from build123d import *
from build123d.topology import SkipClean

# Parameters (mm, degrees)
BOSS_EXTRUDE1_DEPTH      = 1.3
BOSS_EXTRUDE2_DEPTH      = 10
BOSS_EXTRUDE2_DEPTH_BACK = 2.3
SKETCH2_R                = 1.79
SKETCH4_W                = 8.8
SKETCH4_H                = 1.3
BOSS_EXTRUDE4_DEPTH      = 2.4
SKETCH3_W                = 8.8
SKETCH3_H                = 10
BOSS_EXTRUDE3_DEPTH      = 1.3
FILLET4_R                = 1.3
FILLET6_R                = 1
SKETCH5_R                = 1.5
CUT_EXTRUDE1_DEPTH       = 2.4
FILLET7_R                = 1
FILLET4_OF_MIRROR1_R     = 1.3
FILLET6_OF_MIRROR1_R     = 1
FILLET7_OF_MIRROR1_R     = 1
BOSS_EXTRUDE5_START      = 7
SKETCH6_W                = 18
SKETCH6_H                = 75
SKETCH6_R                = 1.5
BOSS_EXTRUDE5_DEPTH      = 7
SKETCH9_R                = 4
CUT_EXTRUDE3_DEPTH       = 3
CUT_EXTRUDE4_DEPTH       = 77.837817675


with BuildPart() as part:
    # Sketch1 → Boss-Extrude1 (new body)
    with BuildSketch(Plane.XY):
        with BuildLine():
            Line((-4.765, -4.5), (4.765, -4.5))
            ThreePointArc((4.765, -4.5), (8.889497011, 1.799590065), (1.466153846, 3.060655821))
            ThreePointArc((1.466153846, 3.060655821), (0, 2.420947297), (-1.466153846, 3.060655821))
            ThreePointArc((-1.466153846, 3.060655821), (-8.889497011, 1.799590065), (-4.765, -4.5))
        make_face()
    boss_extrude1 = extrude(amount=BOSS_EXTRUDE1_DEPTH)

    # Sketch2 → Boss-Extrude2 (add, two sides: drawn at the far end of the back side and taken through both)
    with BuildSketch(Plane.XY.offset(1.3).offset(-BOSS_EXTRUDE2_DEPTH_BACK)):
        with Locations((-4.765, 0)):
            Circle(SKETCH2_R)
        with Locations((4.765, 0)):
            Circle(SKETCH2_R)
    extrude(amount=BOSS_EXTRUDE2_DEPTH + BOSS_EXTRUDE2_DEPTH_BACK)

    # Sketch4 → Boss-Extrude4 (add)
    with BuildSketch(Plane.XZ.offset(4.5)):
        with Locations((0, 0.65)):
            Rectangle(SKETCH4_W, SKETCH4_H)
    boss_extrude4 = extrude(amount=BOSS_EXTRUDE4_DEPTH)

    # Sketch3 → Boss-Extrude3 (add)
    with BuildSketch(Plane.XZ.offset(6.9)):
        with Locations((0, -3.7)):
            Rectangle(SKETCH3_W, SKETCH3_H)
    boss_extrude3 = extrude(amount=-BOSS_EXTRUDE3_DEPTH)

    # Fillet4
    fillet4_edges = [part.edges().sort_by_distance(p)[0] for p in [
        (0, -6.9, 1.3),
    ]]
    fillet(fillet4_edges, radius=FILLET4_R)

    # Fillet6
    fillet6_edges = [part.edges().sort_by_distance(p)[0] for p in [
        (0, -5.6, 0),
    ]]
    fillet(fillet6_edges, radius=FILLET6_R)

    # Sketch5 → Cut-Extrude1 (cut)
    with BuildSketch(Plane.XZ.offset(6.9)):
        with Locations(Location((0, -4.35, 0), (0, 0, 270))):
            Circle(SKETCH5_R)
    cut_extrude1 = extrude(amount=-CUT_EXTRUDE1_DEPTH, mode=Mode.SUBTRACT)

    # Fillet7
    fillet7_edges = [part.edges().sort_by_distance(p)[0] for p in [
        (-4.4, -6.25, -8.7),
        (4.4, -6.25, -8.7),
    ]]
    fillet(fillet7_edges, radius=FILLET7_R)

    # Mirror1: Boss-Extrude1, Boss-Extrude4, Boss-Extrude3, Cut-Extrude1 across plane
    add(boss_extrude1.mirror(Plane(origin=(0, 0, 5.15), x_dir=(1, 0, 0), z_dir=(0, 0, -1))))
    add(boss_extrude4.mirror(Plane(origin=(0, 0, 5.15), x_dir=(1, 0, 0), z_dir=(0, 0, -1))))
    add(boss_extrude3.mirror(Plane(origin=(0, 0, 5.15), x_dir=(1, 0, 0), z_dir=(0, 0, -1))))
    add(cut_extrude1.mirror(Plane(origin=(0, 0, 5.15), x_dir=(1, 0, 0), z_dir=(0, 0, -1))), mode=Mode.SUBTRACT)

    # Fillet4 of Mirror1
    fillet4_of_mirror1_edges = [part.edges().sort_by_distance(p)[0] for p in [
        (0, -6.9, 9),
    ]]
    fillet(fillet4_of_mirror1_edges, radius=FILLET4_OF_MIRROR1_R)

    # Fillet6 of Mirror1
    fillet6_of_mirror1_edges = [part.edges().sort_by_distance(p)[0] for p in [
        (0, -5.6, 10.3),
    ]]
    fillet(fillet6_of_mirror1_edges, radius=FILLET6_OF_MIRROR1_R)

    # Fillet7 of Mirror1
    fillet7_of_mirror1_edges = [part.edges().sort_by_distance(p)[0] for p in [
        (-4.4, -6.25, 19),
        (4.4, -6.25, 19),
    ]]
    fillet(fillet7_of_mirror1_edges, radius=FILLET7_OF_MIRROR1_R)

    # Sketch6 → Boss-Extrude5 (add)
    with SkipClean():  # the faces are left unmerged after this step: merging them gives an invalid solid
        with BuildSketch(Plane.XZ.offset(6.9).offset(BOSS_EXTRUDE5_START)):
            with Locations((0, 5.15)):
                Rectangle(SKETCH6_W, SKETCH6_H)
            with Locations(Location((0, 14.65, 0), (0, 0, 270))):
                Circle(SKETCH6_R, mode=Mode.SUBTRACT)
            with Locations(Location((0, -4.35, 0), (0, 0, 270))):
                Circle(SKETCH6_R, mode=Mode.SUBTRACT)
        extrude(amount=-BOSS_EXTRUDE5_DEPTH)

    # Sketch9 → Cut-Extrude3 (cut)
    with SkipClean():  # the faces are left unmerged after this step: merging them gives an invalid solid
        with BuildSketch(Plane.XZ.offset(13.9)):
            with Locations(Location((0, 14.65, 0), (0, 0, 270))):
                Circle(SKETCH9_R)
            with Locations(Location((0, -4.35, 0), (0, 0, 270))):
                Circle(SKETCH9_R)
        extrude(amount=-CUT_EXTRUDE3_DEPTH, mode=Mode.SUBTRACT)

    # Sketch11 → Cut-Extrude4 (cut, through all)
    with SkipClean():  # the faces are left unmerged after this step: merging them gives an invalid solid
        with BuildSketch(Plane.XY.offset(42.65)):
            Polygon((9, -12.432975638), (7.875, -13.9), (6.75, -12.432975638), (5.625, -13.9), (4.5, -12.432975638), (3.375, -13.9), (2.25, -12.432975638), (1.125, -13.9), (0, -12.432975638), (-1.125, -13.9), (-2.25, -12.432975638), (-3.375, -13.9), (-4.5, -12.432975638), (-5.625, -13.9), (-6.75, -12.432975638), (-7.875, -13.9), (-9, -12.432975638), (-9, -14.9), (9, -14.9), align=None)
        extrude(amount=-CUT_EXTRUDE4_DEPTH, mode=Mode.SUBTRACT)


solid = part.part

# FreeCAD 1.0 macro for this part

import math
import FreeCAD as App
import Part
import Sketcher

V = App.Vector


def edges_at(feature, points):
    """Names of the edges that pass closest to the given points."""
    edges = feature.Shape.Edges
    near = lambda p: min(range(len(edges)), key=lambda i: edges[i].distToShape(Part.Vertex(*p))[0])
    return sorted({f"Edge{near(p) + 1}" for p in points})

doc = App.newDocument("Part")
params = doc.addObject("Spreadsheet::Sheet", "Params")
for row, (alias, value) in enumerate([
    ("sketch1_radius", "2 mm"),
    ("sketch1_radius2", "4.5 mm"),
    ("sketch1_width", "9.53 mm"),
    ("pad1_length", "1.3 mm"),
    ("sketch2_diameter", "3.58 mm"),
    ("pad2_length", "10 mm"),
    ("pad2_length2", "2.3 mm"),
    ("sketch3_width", "8.8 mm"),
    ("sketch3_height", "1.3 mm"),
    ("pad3_length", "2.4 mm"),
    ("sketch4_height", "10 mm"),
    ("sketch4_width", "8.8 mm"),
    ("pad4_length", "1.3 mm"),
    ("fillet_radius", "1.3 mm"),
    ("fillet2_radius", "1 mm"),
    ("sketch5_diameter", "3 mm"),
    ("pocket1_length", "2.4 mm"),
    ("fillet3_radius", "1 mm"),
    ("fillet4_radius", "1.3 mm"),
    ("fillet5_radius", "1 mm"),
    ("fillet6_radius", "1 mm"),
    ("sketch6_diameter", "3 mm"),
    ("sketch6_width", "18 mm"),
    ("sketch6_height", "75 mm"),
    ("pad5_length", "7 mm"),
    ("sketch7_diameter", "8 mm"),
    ("pocket2_length", "3 mm"),
    ("sketch8_width", "18 mm"),
], start=1):
    params.set(f"A{row}", alias)
    params.set(f"B{row}", "=" + value)
    params.setAlias(f"B{row}", alias)

body = doc.addObject("PartDesign::Body", "Body")

# Sketch on XY plane
sketch1 = body.newObject("Sketcher::SketchObject", "Sketch")
sketch1.AttachmentSupport = (doc.getObject("XY_Plane"), [""])
sketch1.MapMode = "FlatFace"
sketch1.addGeometry([
    Part.LineSegment(V(-4.8, -4.5, 0), V(4.8, -4.5, 0)),
    Part.ArcOfCircle(Part.Circle(V(4.8, 0, 0), V(0, 0, 1), 4.5), math.radians(-90), math.radians(137)),
    Part.ArcOfCircle(Part.Circle(V(0, 4.4, 0), V(0, 0, 1), 2), math.radians(-137), math.radians(-43)),
    Part.ArcOfCircle(Part.Circle(V(-4.8, 0, 0), V(0, 0, 1), 4.5), math.radians(43), math.radians(270)),
], False)
sketch1.addConstraint([
    Sketcher.Constraint("Tangent", 0, 2, 1, 1),
    Sketcher.Constraint("Tangent", 1, 2, 2, 2),
    Sketcher.Constraint("Tangent", 2, 1, 3, 1),
    Sketcher.Constraint("Tangent", 3, 2, 0, 1),
    Sketcher.Constraint("Horizontal", 0),
    Sketcher.Constraint("Equal", 1, 3),
    Sketcher.Constraint("Symmetric", 1, 3, 3, 3, -1, 1),
    Sketcher.Constraint("Radius", 2, 2.0),
    Sketcher.Constraint("Radius", 1, 4.5),
    Sketcher.Constraint("DistanceX", 0, 1, 0, 2, 9.53),
])
sketch1.setExpression("Constraints[7]", "Params.sketch1_radius")
sketch1.setExpression("Constraints[8]", "Params.sketch1_radius2")
sketch1.setExpression("Constraints[9]", "Params.sketch1_width")
pad1 = body.newObject("PartDesign::Pad", "Pad")
pad1.Profile = sketch1
pad1.setExpression("Length", "Params.pad1_length")

# Sketch on XY plane
sketch2 = body.newObject("Sketcher::SketchObject", "Sketch001")
sketch2.AttachmentSupport = (doc.getObject("XY_Plane"), [""])
sketch2.MapMode = "FlatFace"
sketch2.AttachmentOffset = App.Placement(V(0, 0, 1.3), App.Rotation())
sketch2.addGeometry([
    Part.Circle(V(-4.8, 0, 0), V(0, 0, 1), 1.8),
    Part.Circle(V(4.8, 0, 0), V(0, 0, 1), 1.8),
], False)
sketch2.addConstraint([
    Sketcher.Constraint("Equal", 0, 1),
    Sketcher.Constraint("Symmetric", 0, 3, 1, 3, -1, 1),
    Sketcher.Constraint("PointOnObject", 0, 3, -1),
    Sketcher.Constraint("Diameter", 0, 3.58),
    Sketcher.Constraint("DistanceX", 0, 3, 1, 3, 9.53),
])
sketch2.setExpression("Constraints[3]", "Params.sketch2_diameter")
pad2 = body.newObject("PartDesign::Pad", "Pad001")
pad2.Profile = sketch2
pad2.Type = "TwoLengths"
pad2.setExpression("Length", "Params.pad2_length")
pad2.setExpression("Length2", "Params.pad2_length2")

# Sketch on XZ plane
sketch3 = body.newObject("Sketcher::SketchObject", "Sketch002")
sketch3.AttachmentSupport = (doc.getObject("XZ_Plane"), [""])
sketch3.MapMode = "FlatFace"
sketch3.AttachmentOffset = App.Placement(V(0, 0, 4.5), App.Rotation())
sketch3.addGeometry([
    Part.LineSegment(V(-4.4, 1.3, 0), V(-4.4, 0, 0)),
    Part.LineSegment(V(-4.4, 0, 0), V(4.4, 0, 0)),
    Part.LineSegment(V(4.4, 0, 0), V(4.4, 1.3, 0)),
    Part.LineSegment(V(4.4, 1.3, 0), V(-4.4, 1.3, 0)),
], False)
sketch3.addConstraint([
    Sketcher.Constraint("Coincident", 0, 2, 1, 1),
    Sketcher.Constraint("Coincident", 1, 2, 2, 1),
    Sketcher.Constraint("Coincident", 2, 2, 3, 1),
    Sketcher.Constraint("Coincident", 3, 2, 0, 1),
    Sketcher.Constraint("Vertical", 0),
    Sketcher.Constraint("Horizontal", 1),
    Sketcher.Constraint("Vertical", 2),
    Sketcher.Constraint("Horizontal", 3),
    Sketcher.Constraint("Symmetric", 0, 2, 1, 2, -1, 1),
    Sketcher.Constraint("DistanceX", 1, 1, 1, 2, 8.8),
    Sketcher.Constraint("DistanceY", 0, 2, 0, 1, 1.3),
])
sketch3.setExpression("Constraints[9]", "Params.sketch3_width")
sketch3.setExpression("Constraints[10]", "Params.sketch3_height")
pad3 = body.newObject("PartDesign::Pad", "Pad002")
pad3.Profile = sketch3
pad3.setExpression("Length", "Params.pad3_length")

# Sketch on XZ plane
sketch4 = body.newObject("Sketcher::SketchObject", "Sketch003")
sketch4.AttachmentSupport = (doc.getObject("XZ_Plane"), [""])
sketch4.MapMode = "FlatFace"
sketch4.AttachmentOffset = App.Placement(V(0, 0, 6.9), App.Rotation())
sketch4.addGeometry([
    Part.LineSegment(V(-4, 1, 0), V(-4, -9, 0)),
    Part.LineSegment(V(-4, -9, 0), V(4, -9, 0)),
    Part.LineSegment(V(4, -9, 0), V(4, 1, 0)),
    Part.LineSegment(V(4, 1, 0), V(-4, 1, 0)),
], False)
sketch4.addConstraint([
    Sketcher.Constraint("Coincident", 0, 2, 1, 1),
    Sketcher.Constraint("Coincident", 1, 2, 2, 1),
    Sketcher.Constraint("Coincident", 2, 2, 3, 1),
    Sketcher.Constraint("Coincident", 3, 2, 0, 1),
    Sketcher.Constraint("Vertical", 0),
    Sketcher.Constraint("Horizontal", 1),
    Sketcher.Constraint("Vertical", 2),
    Sketcher.Constraint("Horizontal", 3),
    Sketcher.Constraint("DistanceY", 0, 2, 0, 1, 10.0),
    Sketcher.Constraint("DistanceX", 1, 1, 1, 2, 8.8),
    Sketcher.Constraint("DistanceX", 0, 2, -1, 1, 4.4),
    Sketcher.Constraint("DistanceY", 0, 2, -1, 1, 8.7),
])
sketch4.setExpression("Constraints[8]", "Params.sketch4_height")
sketch4.setExpression("Constraints[9]", "Params.sketch4_width")
pad4 = body.newObject("PartDesign::Pad", "Pad003")
pad4.Profile = sketch4
pad4.setExpression("Length", "Params.pad4_length")
pad4.Reversed = True
doc.recompute()

fillet = body.newObject("PartDesign::Fillet", "Fillet")
fillet.Base = (pad4, edges_at(pad4, [(0, -6.9, 1.3)]))
fillet.setExpression("Radius", "Params.fillet_radius")
doc.recompute()

fillet2 = body.newObject("PartDesign::Fillet", "Fillet001")
fillet2.Base = (fillet, edges_at(fillet, [(0, -5.6, 0)]))
fillet2.setExpression("Radius", "Params.fillet2_radius")

# Sketch on XZ plane
sketch5 = body.newObject("Sketcher::SketchObject", "Sketch004")
sketch5.AttachmentSupport = (doc.getObject("XZ_Plane"), [""])
sketch5.MapMode = "FlatFace"
sketch5.AttachmentOffset = App.Placement(V(0, 0, 6.9), App.Rotation())
sketch5.addGeometry(Part.Circle(V(0, -4.3, 0), V(0, 0, 1), 1.5), False)
sketch5.addConstraint([
    Sketcher.Constraint("PointOnObject", 0, 3, -2),
    Sketcher.Constraint("Diameter", 0, 3.0),
    Sketcher.Constraint("DistanceY", 0, 3, -1, 1, 4.35),
])
sketch5.setExpression("Constraints[1]", "Params.sketch5_diameter")
pocket1 = body.newObject("PartDesign::Pocket", "Pocket")
pocket1.Profile = sketch5
pocket1.setExpression("Length", "Params.pocket1_length")
doc.recompute()

fillet3 = body.newObject("PartDesign::Fillet", "Fillet002")
fillet3.Base = (pocket1, edges_at(pocket1, [(-4.4, -6.25, -8.7), (4.4, -6.25, -8.7)]))
fillet3.setExpression("Radius", "Params.fillet3_radius")
doc.recompute()

datumplane = body.newObject("PartDesign::Plane", "DatumPlane")
datumplane.AttachmentSupport = (doc.getObject("XY_Plane"), [""])
datumplane.MapMode = "FlatFace"
datumplane.AttachmentOffset = App.Placement(V(0, 0, 5.15), App.Rotation())
mirrored = body.newObject("PartDesign::Mirrored", "Mirrored")
mirrored.Originals = [pad1, pad3, pad4, pocket1]
mirrored.MirrorPlane = (datumplane, [""])
body.Tip = mirrored
doc.recompute()

fillet4 = body.newObject("PartDesign::Fillet", "Fillet003")
fillet4.Base = (mirrored, edges_at(mirrored, [(0, -6.9, 9)]))
fillet4.setExpression("Radius", "Params.fillet4_radius")
doc.recompute()

fillet5 = body.newObject("PartDesign::Fillet", "Fillet004")
fillet5.Base = (fillet4, edges_at(fillet4, [(0, -5.6, 10.3)]))
fillet5.setExpression("Radius", "Params.fillet5_radius")
doc.recompute()

fillet6 = body.newObject("PartDesign::Fillet", "Fillet005")
fillet6.Base = (fillet5, edges_at(fillet5, [(-4.4, -6.25, 19), (4.4, -6.25, 19)]))
fillet6.setExpression("Radius", "Params.fillet6_radius")

# Sketch on XZ plane
sketch6 = body.newObject("Sketcher::SketchObject", "Sketch005")
sketch6.AttachmentSupport = (doc.getObject("XZ_Plane"), [""])
sketch6.MapMode = "FlatFace"
sketch6.AttachmentOffset = App.Placement(V(0, 0, 13.9), App.Rotation())
sketch6.addGeometry([
    Part.LineSegment(V(-9, 42.6, 0), V(-9, -32.4, 0)),  # 0
    Part.LineSegment(V(-9, -32.4, 0), V(9, -32.4, 0)),  # 1
    Part.LineSegment(V(9, -32.4, 0), V(9, 42.6, 0)),  # 2
    Part.LineSegment(V(9, 42.6, 0), V(-9, 42.6, 0)),  # 3
    Part.Circle(V(0, -4.3, 0), V(0, 0, 1), 1.5),  # 4
    Part.Circle(V(0, 14.7, 0), V(0, 0, 1), 1.5),  # 5
], False)
sketch6.addConstraint([
    Sketcher.Constraint("Coincident", 0, 2, 1, 1),
    Sketcher.Constraint("Coincident", 1, 2, 2, 1),
    Sketcher.Constraint("Coincident", 2, 2, 3, 1),
    Sketcher.Constraint("Coincident", 3, 2, 0, 1),
    Sketcher.Constraint("Vertical", 0),
    Sketcher.Constraint("Horizontal", 1),
    Sketcher.Constraint("Vertical", 2),
    Sketcher.Constraint("Horizontal", 3),
    Sketcher.Constraint("Equal", 4, 5),
    Sketcher.Constraint("PointOnObject", 4, 3, -2),
    Sketcher.Constraint("PointOnObject", 5, 3, -2),
    Sketcher.Constraint("Diameter", 4, 3.0),
    Sketcher.Constraint("DistanceX", 1, 1, 1, 2, 18.0),
    Sketcher.Constraint("DistanceY", 0, 2, 0, 1, 75.0),
    Sketcher.Constraint("DistanceX", 0, 2, -1, 1, 9.0),
    Sketcher.Constraint("DistanceY", 4, 3, 5, 3, 19.0),
    Sketcher.Constraint("DistanceY", 0, 2, 4, 3, 28.0),
    Sketcher.Constraint("DistanceY", 4, 3, -1, 1, 4.35),
])
sketch6.setExpression("Constraints[11]", "Params.sketch6_diameter")
sketch6.setExpression("Constraints[12]", "Params.sketch6_width")
sketch6.setExpression("Constraints[13]", "Params.sketch6_height")
pad5 = body.newObject("PartDesign::Pad", "Pad004")
pad5.Profile = sketch6
pad5.setExpression("Length", "Params.pad5_length")
pad5.Reversed = True

# Sketch on XZ plane
sketch7 = body.newObject("Sketcher::SketchObject", "Sketch006")
sketch7.AttachmentSupport = (doc.getObject("XZ_Plane"), [""])
sketch7.MapMode = "FlatFace"
sketch7.AttachmentOffset = App.Placement(V(0, 0, 13.9), App.Rotation())
sketch7.addGeometry([
    Part.Circle(V(0, 14.7, 0), V(0, 0, 1), 4),
    Part.Circle(V(0, -4.3, 0), V(0, 0, 1), 4),
], False)
sketch7.addConstraint([
    Sketcher.Constraint("Equal", 0, 1),
    Sketcher.Constraint("PointOnObject", 0, 3, -2),
    Sketcher.Constraint("PointOnObject", 1, 3, -2),
    Sketcher.Constraint("Diameter", 0, 8.0),
    Sketcher.Constraint("DistanceY", 1, 3, 0, 3, 19.0),
    Sketcher.Constraint("DistanceY", -1, 1, 0, 3, 14.65),
])
sketch7.setExpression("Constraints[3]", "Params.sketch7_diameter")
pocket2 = body.newObject("PartDesign::Pocket", "Pocket001")
pocket2.Profile = sketch7
pocket2.setExpression("Length", "Params.pocket2_length")

# Sketch on XY plane
sketch8 = body.newObject("Sketcher::SketchObject", "Sketch007")
sketch8.AttachmentSupport = (doc.getObject("XY_Plane"), [""])
sketch8.MapMode = "FlatFace"
sketch8.AttachmentOffset = App.Placement(V(0, 0, 42.65), App.Rotation())
sketch8.addGeometry([
    Part.LineSegment(V(9, -12.4, 0), V(7.9, -13.9, 0)),  # 0
    Part.LineSegment(V(7.9, -13.9, 0), V(6.8, -12.4, 0)),  # 1
    Part.LineSegment(V(6.8, -12.4, 0), V(5.6, -13.9, 0)),  # 2
    Part.LineSegment(V(5.6, -13.9, 0), V(4.5, -12.4, 0)),  # 3
    Part.LineSegment(V(4.5, -12.4, 0), V(3.4, -13.9, 0)),  # 4
    Part.LineSegment(V(3.4, -13.9, 0), V(2.2, -12.4, 0)),  # 5
    Part.LineSegment(V(2.2, -12.4, 0), V(1.1, -13.9, 0)),  # 6
    Part.LineSegment(V(1.1, -13.9, 0), V(0, -12.4, 0)),  # 7
    Part.LineSegment(V(0, -12.4, 0), V(-1.1, -13.9, 0)),  # 8
    Part.LineSegment(V(-1.1, -13.9, 0), V(-2.2, -12.4, 0)),  # 9
    Part.LineSegment(V(-2.2, -12.4, 0), V(-3.4, -13.9, 0)),  # 10
    Part.LineSegment(V(-3.4, -13.9, 0), V(-4.5, -12.4, 0)),  # 11
    Part.LineSegment(V(-4.5, -12.4, 0), V(-5.6, -13.9, 0)),  # 12
    Part.LineSegment(V(-5.6, -13.9, 0), V(-6.8, -12.4, 0)),  # 13
    Part.LineSegment(V(-6.8, -12.4, 0), V(-7.9, -13.9, 0)),  # 14
    Part.LineSegment(V(-7.9, -13.9, 0), V(-9, -12.4, 0)),  # 15
    Part.LineSegment(V(-9, -12.4, 0), V(-9, -14.9, 0)),  # 16
    Part.LineSegment(V(-9, -14.9, 0), V(9, -14.9, 0)),  # 17
    Part.LineSegment(V(9, -14.9, 0), V(9, -12.4, 0)),  # 18
], False)
sketch8.addConstraint([
    Sketcher.Constraint("Coincident", 0, 2, 1, 1),
    Sketcher.Constraint("Coincident", 1, 2, 2, 1),
    Sketcher.Constraint("Coincident", 2, 2, 3, 1),
    Sketcher.Constraint("Coincident", 3, 2, 4, 1),
    Sketcher.Constraint("Coincident", 4, 2, 5, 1),
    Sketcher.Constraint("Coincident", 5, 2, 6, 1),
    Sketcher.Constraint("Coincident", 6, 2, 7, 1),
    Sketcher.Constraint("Coincident", 7, 2, 8, 1),
    Sketcher.Constraint("Coincident", 8, 2, 9, 1),
    Sketcher.Constraint("Coincident", 9, 2, 10, 1),
    Sketcher.Constraint("Coincident", 10, 2, 11, 1),
    Sketcher.Constraint("Coincident", 11, 2, 12, 1),
    Sketcher.Constraint("Coincident", 12, 2, 13, 1),
    Sketcher.Constraint("Coincident", 13, 2, 14, 1),
    Sketcher.Constraint("Coincident", 14, 2, 15, 1),
    Sketcher.Constraint("Coincident", 15, 2, 16, 1),
    Sketcher.Constraint("Coincident", 16, 2, 17, 1),
    Sketcher.Constraint("Coincident", 17, 2, 18, 1),
    Sketcher.Constraint("Coincident", 18, 2, 0, 1),
    Sketcher.Constraint("Vertical", 16),
    Sketcher.Constraint("Horizontal", 17),
    Sketcher.Constraint("Vertical", 18),
    Sketcher.Constraint("Symmetric", 6, 2, 8, 2, -2),
    Sketcher.Constraint("Symmetric", 5, 2, 9, 2, -2),
    Sketcher.Constraint("Symmetric", 4, 2, 10, 2, -2),
    Sketcher.Constraint("Symmetric", 3, 2, 11, 2, -2),
    Sketcher.Constraint("Symmetric", 2, 2, 12, 2, -2),
    Sketcher.Constraint("Symmetric", 1, 2, 13, 2, -2),
    Sketcher.Constraint("Symmetric", 0, 2, 14, 2, -2),
    Sketcher.Constraint("Symmetric", 15, 2, 18, 2, -2),
    Sketcher.Constraint("PointOnObject", 7, 2, -2),
    Sketcher.Constraint("Parallel", 0, 2),
    Sketcher.Constraint("Parallel", 1, 3),
    Sketcher.Constraint("Parallel", 2, 4),
    Sketcher.Constraint("Parallel", 3, 5),
    Sketcher.Constraint("Parallel", 4, 6),
    Sketcher.Constraint("Parallel", 5, 7),
    Sketcher.Constraint("Parallel", 6, 8),
    Sketcher.Constraint("Horizontal", 0, 2, 2, 2),
    Sketcher.Constraint("Horizontal", 1, 2, 3, 2),
    Sketcher.Constraint("Horizontal", 2, 2, 4, 2),
    Sketcher.Constraint("Horizontal", 3, 2, 5, 2),
    Sketcher.Constraint("Horizontal", 4, 2, 6, 2),
    Sketcher.Constraint("Horizontal", 5, 2, 7, 2),
    Sketcher.Constraint("Horizontal", 13, 2, 15, 2),
    Sketcher.Constraint("DistanceX", 17, 1, 17, 2, 18.0),
    Sketcher.Constraint("DistanceY", 16, 2, 14, 2, 1.0),
    Sketcher.Constraint("DistanceY", 0, 2, -1, 1, 13.9),
    Sketcher.Constraint("DistanceY", 16, 2, 16, 1, 2.467024),
])
sketch8.setExpression("Constraints[45]", "Params.sketch8_width")
pocket3 = body.newObject("PartDesign::Pocket", "Pocket002")
pocket3.Profile = sketch8
pocket3.Type = "ThroughAll"

doc.recompute()
